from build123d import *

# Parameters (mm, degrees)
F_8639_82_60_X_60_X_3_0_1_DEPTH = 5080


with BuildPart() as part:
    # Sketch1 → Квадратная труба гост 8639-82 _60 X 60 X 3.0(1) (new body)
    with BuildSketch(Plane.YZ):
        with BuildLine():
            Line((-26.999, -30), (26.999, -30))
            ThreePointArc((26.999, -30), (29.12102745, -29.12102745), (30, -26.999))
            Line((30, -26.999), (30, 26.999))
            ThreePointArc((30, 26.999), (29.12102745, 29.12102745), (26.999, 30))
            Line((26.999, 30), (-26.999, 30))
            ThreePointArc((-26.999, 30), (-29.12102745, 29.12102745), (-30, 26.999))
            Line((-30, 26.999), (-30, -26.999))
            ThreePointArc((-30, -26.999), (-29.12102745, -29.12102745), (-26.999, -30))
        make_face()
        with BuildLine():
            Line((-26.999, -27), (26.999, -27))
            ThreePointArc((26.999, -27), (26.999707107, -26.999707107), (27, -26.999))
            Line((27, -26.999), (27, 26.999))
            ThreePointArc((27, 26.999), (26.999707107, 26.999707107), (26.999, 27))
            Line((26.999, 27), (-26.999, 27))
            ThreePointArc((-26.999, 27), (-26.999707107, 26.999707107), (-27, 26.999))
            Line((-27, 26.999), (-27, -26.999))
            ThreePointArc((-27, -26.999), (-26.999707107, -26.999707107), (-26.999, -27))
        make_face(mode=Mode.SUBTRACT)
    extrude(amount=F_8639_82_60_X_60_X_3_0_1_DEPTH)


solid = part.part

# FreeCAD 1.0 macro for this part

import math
import FreeCAD as App
import Part
import Sketcher

V = App.Vector
Q = App.Units.Quantity

doc = App.newDocument("Part")
body = doc.addObject("PartDesign::Body", "Body")

# Sketch on YZ plane
sketch1 = body.newObject("Sketcher::SketchObject", "Sketch")
sketch1.AttachmentSupport = (doc.getObject("YZ_Plane"), [""])
sketch1.MapMode = "FlatFace"
sketch1.addGeometry([
    Part.LineSegment(V(-26.999, -30, 0), V(26.999, -30, 0)),  # 0
    Part.ArcOfCircle(Part.Circle(V(26.999, -26.999, 0), V(0, 0, 1), 3.001), math.radians(-90), math.radians(0)),  # 1
    Part.LineSegment(V(30, -26.999, 0), V(30, 26.999, 0)),  # 2
    Part.ArcOfCircle(Part.Circle(V(26.999, 26.999, 0), V(0, 0, 1), 3.001), math.radians(0), math.radians(90)),  # 3
    Part.LineSegment(V(26.999, 30, 0), V(-26.999, 30, 0)),  # 4
    Part.ArcOfCircle(Part.Circle(V(-26.999, 26.999, 0), V(0, 0, 1), 3.001), math.radians(90), math.radians(180)),  # 5
    Part.LineSegment(V(-30, 26.999, 0), V(-30, -26.999, 0)),  # 6
    Part.ArcOfCircle(Part.Circle(V(-26.999, -26.999, 0), V(0, 0, 1), 3.001), math.radians(-180), math.radians(-90)),  # 7
    Part.LineSegment(V(26.999, -27, 0), V(-26.999, -27, 0)),  # 8
    Part.ArcOfCircle(Part.Circle(V(-26.999, -26.999, 0), V(0, 0, 1), 0.001), math.radians(180), math.radians(270)),  # 9
    Part.LineSegment(V(-27, -26.999, 0), V(-27, 26.999, 0)),  # 10
    Part.ArcOfCircle(Part.Circle(V(-26.999, 26.999, 0), V(0, 0, 1), 0.001), math.radians(90), math.radians(180)),  # 11
    Part.LineSegment(V(-26.999, 27, 0), V(26.999, 27, 0)),  # 12
    Part.ArcOfCircle(Part.Circle(V(26.999, 26.999, 0), V(0, 0, 1), 0.001), math.radians(0), math.radians(90)),  # 13
    Part.LineSegment(V(27, 26.999, 0), V(27, -26.999, 0)),  # 14
    Part.ArcOfCircle(Part.Circle(V(26.999, -26.999, 0), V(0, 0, 1), 0.001), math.radians(-90), math.radians(0)),  # 15
], False)
sketch1.addConstraint([
    Sketcher.Constraint("Tangent", 0, 2, 1, 1),
    Sketcher.Constraint("Tangent", 1, 2, 2, 1),
    Sketcher.Constraint("Tangent", 2, 2, 3, 1),
    Sketcher.Constraint("Tangent", 3, 2, 4, 1),
    Sketcher.Constraint("Tangent", 4, 2, 5, 1),
    Sketcher.Constraint("Tangent", 5, 2, 6, 1),
    Sketcher.Constraint("Tangent", 6, 2, 7, 1),
    Sketcher.Constraint("Tangent", 7, 2, 0, 1),
    Sketcher.Constraint("Tangent", 8, 2, 9, 2),
    Sketcher.Constraint("Tangent", 9, 1, 10, 1),
    Sketcher.Constraint("Tangent", 10, 2, 11, 2),
    Sketcher.Constraint("Tangent", 11, 1, 12, 1),
    Sketcher.Constraint("Tangent", 12, 2, 13, 2),
    Sketcher.Constraint("Tangent", 13, 1, 14, 1),
    Sketcher.Constraint("Tangent", 14, 2, 15, 2),
    Sketcher.Constraint("Tangent", 15, 1, 8, 1),
    Sketcher.Constraint("Horizontal", 0),
    Sketcher.Constraint("Vertical", 2),
    Sketcher.Constraint("Horizontal", 4),
    Sketcher.Constraint("Vertical", 6),
    Sketcher.Constraint("Horizontal", 8),
    Sketcher.Constraint("Vertical", 10),
    Sketcher.Constraint("Horizontal", 12),
    Sketcher.Constraint("Vertical", 14),
    Sketcher.Constraint("Coincident", 9, 3, 7, 3),
    Sketcher.Constraint("Coincident", 11, 3, 5, 3),
    Sketcher.Constraint("Coincident", 13, 3, 3, 3),
    Sketcher.Constraint("Equal", 1, 3),
    Sketcher.Constraint("Equal", 3, 5),
    Sketcher.Constraint("Equal", 5, 7),
    Sketcher.Constraint("Equal", 13, 15),
    Sketcher.Constraint("Symmetric", 1, 3, 5, 3, -1, 1),
    Sketcher.Constraint("Equal", 12, 2),
    Sketcher.Constraint("Radius", 1, Q("3.001 mm")),
    Sketcher.Constraint("Radius", 9, Q("0.001 mm")),
    Sketcher.Constraint("DistanceX", 0, 1, 0, 2, Q("53.998 mm")),
])
pad1 = body.newObject("PartDesign::Pad", "Pad")
pad1.Profile = sketch1
pad1.Length = Q("200 in")

doc.recompute()
